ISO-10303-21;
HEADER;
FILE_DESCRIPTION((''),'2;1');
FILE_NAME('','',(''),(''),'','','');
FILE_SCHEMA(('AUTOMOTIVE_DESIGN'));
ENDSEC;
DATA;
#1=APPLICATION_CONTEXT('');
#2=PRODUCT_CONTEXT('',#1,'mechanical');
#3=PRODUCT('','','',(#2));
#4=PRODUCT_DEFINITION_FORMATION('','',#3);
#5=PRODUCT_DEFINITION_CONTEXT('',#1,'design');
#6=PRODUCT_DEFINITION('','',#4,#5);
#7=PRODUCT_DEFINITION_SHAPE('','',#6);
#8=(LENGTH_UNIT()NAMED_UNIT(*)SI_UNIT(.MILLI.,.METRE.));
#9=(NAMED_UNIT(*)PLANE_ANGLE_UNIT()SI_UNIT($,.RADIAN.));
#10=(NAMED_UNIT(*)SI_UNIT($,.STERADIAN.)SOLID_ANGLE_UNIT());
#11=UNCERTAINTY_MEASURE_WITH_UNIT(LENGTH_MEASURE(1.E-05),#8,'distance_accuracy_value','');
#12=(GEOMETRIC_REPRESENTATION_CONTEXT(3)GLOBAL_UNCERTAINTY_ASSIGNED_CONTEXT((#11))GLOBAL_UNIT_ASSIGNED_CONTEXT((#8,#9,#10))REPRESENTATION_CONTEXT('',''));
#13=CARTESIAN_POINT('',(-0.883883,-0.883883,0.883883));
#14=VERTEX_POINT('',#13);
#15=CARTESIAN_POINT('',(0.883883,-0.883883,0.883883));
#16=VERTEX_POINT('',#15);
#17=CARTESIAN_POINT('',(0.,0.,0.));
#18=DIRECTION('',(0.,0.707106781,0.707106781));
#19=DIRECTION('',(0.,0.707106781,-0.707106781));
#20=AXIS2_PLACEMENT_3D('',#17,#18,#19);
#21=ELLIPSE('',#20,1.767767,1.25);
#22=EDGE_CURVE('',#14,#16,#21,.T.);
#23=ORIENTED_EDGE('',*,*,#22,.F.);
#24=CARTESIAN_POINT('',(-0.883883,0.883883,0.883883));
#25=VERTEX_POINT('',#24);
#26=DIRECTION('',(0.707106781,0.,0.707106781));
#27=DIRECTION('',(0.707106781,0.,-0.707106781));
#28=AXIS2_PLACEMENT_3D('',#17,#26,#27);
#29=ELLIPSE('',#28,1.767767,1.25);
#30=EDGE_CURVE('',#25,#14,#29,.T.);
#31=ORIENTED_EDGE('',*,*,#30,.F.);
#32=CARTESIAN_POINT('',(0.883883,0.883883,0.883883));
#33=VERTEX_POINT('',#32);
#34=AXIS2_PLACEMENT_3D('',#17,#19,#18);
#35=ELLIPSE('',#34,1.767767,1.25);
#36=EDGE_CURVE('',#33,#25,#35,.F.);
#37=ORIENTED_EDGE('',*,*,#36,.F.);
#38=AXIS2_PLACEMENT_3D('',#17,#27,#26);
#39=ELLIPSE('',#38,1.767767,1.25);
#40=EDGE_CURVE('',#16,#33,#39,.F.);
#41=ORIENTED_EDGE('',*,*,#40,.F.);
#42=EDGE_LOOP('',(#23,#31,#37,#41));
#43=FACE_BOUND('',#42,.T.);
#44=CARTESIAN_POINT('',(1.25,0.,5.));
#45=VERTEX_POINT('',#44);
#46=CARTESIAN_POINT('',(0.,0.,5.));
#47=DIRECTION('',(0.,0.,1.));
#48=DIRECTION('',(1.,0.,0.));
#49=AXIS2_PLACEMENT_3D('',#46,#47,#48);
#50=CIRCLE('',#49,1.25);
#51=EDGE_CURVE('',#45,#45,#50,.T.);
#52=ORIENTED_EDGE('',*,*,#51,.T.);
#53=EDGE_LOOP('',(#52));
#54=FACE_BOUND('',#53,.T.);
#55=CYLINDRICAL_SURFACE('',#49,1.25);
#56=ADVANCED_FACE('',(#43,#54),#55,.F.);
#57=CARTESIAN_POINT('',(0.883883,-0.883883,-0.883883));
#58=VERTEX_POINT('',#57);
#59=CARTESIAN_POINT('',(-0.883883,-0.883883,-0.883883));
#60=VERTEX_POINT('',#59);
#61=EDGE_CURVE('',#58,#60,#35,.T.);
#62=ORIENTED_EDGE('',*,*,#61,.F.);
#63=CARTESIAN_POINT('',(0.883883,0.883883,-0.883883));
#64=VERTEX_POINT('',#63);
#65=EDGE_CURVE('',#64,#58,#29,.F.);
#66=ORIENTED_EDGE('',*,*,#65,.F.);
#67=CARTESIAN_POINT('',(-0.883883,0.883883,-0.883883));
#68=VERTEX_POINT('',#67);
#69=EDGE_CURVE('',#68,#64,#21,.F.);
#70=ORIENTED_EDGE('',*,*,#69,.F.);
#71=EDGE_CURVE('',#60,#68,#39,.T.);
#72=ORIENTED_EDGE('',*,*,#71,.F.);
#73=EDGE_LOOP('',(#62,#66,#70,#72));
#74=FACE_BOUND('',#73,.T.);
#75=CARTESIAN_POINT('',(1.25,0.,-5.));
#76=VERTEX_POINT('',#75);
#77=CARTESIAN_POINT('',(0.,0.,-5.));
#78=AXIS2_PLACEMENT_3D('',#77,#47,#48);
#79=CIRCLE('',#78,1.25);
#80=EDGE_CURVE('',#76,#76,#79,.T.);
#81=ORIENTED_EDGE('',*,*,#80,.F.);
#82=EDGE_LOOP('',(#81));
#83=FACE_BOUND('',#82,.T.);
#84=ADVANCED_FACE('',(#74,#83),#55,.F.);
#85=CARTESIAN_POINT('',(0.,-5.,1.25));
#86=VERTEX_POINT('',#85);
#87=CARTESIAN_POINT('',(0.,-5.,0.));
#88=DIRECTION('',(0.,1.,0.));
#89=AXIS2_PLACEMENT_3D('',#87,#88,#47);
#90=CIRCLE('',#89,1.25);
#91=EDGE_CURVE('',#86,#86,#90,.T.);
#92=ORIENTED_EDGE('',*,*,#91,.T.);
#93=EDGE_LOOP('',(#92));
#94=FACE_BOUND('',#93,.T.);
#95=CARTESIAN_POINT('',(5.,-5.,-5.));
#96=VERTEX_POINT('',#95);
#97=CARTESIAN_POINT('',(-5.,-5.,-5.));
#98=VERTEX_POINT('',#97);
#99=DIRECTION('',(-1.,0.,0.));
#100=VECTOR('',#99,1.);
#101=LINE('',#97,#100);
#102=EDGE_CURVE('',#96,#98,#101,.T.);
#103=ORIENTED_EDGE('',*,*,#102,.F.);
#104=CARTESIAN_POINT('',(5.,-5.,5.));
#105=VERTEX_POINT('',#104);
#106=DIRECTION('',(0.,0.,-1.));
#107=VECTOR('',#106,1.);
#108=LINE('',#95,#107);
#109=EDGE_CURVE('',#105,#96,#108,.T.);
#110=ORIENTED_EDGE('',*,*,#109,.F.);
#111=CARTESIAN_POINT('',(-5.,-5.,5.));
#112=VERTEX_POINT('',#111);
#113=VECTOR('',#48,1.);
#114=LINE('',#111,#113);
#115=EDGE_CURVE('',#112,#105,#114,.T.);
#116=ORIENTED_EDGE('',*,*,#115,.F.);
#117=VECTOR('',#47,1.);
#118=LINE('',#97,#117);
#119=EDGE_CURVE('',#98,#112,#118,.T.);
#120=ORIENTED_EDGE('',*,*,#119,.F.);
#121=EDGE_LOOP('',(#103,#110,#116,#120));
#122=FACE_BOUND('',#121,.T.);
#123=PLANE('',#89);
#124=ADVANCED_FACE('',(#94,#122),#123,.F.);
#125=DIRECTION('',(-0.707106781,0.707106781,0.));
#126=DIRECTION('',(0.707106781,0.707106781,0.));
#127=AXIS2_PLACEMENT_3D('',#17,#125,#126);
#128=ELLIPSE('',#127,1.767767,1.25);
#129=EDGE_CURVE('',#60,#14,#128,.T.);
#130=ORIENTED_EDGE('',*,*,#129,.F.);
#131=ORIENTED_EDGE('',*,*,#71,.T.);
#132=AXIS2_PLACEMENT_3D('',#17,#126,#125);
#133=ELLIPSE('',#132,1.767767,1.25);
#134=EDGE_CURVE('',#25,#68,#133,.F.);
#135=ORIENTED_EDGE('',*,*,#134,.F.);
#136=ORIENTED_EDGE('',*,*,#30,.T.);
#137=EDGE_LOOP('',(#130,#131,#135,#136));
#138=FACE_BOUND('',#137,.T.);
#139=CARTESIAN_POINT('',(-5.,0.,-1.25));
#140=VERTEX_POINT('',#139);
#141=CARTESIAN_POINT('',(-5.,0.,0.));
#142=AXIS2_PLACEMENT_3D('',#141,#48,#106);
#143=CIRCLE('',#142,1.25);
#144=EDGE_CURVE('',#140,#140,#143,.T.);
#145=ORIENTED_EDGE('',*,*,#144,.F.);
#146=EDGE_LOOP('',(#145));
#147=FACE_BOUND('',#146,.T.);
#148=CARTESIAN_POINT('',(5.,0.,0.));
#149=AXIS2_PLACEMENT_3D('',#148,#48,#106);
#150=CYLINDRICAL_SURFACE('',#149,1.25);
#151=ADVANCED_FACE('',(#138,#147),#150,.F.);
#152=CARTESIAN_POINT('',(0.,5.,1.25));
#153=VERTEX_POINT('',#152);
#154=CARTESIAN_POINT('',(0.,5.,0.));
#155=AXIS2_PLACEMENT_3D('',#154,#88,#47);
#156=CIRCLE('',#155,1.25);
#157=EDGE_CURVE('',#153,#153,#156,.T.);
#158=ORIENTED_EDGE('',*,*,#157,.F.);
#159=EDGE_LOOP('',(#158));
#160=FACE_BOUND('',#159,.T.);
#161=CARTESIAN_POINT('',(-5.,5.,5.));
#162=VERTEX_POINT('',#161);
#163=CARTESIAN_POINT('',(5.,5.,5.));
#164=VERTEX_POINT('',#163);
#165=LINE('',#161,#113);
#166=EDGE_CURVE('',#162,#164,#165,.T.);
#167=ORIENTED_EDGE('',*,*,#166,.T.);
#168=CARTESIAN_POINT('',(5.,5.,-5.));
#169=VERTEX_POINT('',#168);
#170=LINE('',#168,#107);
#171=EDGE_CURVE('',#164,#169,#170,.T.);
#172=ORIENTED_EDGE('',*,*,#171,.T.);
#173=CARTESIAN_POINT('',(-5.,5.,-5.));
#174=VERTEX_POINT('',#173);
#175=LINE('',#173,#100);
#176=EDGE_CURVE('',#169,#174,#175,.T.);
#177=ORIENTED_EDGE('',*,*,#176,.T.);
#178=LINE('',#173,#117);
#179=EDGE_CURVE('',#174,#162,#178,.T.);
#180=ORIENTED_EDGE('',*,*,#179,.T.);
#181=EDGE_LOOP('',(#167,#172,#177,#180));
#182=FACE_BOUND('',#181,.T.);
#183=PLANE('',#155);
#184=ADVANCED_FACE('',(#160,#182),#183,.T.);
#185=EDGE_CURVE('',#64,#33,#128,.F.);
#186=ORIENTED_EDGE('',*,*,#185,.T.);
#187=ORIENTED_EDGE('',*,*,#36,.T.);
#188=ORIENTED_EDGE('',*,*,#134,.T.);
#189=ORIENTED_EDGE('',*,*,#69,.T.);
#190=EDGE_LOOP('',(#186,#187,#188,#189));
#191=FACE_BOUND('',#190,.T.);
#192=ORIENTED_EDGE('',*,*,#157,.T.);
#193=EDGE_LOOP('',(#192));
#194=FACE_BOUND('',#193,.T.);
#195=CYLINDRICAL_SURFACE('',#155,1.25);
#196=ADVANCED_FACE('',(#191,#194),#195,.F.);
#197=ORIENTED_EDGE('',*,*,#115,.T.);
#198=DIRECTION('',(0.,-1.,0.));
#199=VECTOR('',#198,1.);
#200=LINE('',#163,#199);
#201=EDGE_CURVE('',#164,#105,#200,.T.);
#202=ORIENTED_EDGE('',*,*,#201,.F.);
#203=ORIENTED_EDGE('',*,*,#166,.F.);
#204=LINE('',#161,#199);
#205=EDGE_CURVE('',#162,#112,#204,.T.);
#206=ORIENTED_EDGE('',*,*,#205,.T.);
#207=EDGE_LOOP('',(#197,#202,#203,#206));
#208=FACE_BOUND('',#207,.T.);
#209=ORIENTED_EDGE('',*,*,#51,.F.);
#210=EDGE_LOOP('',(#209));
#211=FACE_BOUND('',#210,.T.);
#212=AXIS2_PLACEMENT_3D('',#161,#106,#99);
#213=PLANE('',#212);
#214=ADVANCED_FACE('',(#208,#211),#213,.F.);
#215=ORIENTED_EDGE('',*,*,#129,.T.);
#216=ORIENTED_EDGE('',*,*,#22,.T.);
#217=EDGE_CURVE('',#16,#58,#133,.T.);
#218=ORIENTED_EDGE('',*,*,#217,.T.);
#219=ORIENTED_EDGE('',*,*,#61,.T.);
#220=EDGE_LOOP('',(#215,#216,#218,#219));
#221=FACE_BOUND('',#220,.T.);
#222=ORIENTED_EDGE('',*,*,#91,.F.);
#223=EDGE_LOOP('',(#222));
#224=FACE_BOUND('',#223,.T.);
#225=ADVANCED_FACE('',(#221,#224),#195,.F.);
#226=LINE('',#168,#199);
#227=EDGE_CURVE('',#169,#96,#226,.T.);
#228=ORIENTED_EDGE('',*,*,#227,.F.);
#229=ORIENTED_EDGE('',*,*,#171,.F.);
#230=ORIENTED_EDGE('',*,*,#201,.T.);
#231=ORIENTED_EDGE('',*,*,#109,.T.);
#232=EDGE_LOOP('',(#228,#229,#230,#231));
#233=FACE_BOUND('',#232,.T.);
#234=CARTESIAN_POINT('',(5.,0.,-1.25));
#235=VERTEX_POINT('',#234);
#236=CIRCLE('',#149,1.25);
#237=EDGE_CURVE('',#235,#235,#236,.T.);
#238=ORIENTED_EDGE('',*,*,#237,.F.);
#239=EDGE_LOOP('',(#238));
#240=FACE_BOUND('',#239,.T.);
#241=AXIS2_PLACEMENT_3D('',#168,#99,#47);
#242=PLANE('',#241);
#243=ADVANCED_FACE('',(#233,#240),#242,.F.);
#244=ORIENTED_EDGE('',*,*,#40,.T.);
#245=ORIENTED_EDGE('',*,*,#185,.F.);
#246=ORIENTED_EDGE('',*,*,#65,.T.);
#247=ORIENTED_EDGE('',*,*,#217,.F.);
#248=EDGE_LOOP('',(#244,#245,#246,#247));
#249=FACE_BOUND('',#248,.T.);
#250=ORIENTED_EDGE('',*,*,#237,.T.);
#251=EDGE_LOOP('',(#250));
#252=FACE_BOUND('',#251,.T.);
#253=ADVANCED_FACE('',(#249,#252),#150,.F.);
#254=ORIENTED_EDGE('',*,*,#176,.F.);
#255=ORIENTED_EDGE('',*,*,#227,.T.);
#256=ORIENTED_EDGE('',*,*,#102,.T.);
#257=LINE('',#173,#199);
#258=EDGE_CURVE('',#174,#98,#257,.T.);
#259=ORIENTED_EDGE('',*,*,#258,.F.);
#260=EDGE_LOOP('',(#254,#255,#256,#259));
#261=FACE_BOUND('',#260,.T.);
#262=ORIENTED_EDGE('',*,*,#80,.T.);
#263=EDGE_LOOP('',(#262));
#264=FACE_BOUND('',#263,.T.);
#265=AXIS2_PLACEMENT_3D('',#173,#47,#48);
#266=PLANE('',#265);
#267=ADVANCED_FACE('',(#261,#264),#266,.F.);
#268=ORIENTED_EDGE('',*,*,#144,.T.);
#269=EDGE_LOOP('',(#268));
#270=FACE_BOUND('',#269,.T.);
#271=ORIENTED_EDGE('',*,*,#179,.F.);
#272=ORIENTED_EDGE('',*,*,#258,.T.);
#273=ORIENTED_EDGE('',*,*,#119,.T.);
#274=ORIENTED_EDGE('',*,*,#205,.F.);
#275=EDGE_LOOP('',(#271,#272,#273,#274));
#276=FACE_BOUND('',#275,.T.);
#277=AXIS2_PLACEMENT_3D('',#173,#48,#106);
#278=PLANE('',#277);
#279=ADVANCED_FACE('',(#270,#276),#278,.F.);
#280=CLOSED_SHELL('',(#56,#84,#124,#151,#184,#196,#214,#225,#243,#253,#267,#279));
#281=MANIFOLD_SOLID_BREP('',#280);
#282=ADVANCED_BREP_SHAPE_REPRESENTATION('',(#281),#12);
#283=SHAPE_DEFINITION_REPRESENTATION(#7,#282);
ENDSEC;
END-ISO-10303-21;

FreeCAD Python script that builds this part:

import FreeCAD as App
import Part
import Sketcher
from FreeCAD import Vector

doc = App.newDocument("Part")
body = doc.addObject("PartDesign::Body", "Body")

sketch1 = body.newObject("Sketcher::SketchObject", "Sketch")
sketch1.AttachmentSupport = (doc.getObject("XZ_Plane"), [""])
sketch1.MapMode = "FlatFace"
sketch1.addGeometry(Part.LineSegment(Vector(-5, -5, 0), Vector(-5, 5, 0)), False)
sketch1.addGeometry(Part.LineSegment(Vector(-5, 5, 0), Vector(5, 5, 0)), False)
sketch1.addGeometry(Part.LineSegment(Vector(5, 5, 0), Vector(5, -5, 0)), False)
sketch1.addGeometry(Part.LineSegment(Vector(5, -5, 0), Vector(-5, -5, 0)), False)
sketch1.addConstraint(Sketcher.Constraint("Coincident", 0, 2, 1, 1))
sketch1.addConstraint(Sketcher.Constraint("Coincident", 1, 2, 2, 1))
sketch1.addConstraint(Sketcher.Constraint("Coincident", 2, 2, 3, 1))
sketch1.addConstraint(Sketcher.Constraint("Coincident", 3, 2, 0, 1))
sketch1.addConstraint(Sketcher.Constraint("Vertical", 0))
sketch1.addConstraint(Sketcher.Constraint("Horizontal", 1))
sketch1.addConstraint(Sketcher.Constraint("Vertical", 2))
sketch1.addConstraint(Sketcher.Constraint("Horizontal", 3))
sketch1.addConstraint(Sketcher.Constraint("Symmetric", 0, 2, 2, 2, -1, 1))
sketch1.addConstraint(Sketcher.Constraint("Equal", 3, 0))
sketch1.addConstraint(Sketcher.Constraint("DistanceX", 1, 1, 1, 2, 10.0))
pad1 = body.newObject("PartDesign::Pad", "Pad")
pad1.Profile = sketch1
pad1.Length = 10
pad1.Midplane = True

sketch2 = body.newObject("Sketcher::SketchObject", "Sketch001")
sketch2.AttachmentSupport = (doc.getObject("XZ_Plane"), [""])
sketch2.MapMode = "FlatFace"
sketch2.AttachmentOffset = App.Placement(Vector(0, 0, -5), App.Rotation())
sketch2.addGeometry(Part.Circle(Vector(0, 0, 0), Vector(0, 0, 1), 1.2), False)
sketch2.addConstraint(Sketcher.Constraint("Coincident", 0, 3, -1, 1))
sketch2.addConstraint(Sketcher.Constraint("Diameter", 0, 2.5))
doc.recompute()
hole = body.newObject("PartDesign::Hole", "Hole")
hole.Profile = sketch2
hole.ThreadType = "None"
hole.Diameter = 2.5
hole.DepthType = "ThroughAll"
hole.Reversed = True

sketch3 = body.newObject("Sketcher::SketchObject", "Sketch002")
sketch3.AttachmentSupport = (doc.getObject("YZ_Plane"), [""])
sketch3.MapMode = "FlatFace"
sketch3.AttachmentOffset = App.Placement(Vector(0, 0, 5), App.Rotation())
sketch3.addGeometry(Part.Circle(Vector(0, 0, 0), Vector(0, 0, 1), 1.2), False)
sketch3.addConstraint(Sketcher.Constraint("Coincident", 0, 3, -1, 1))
sketch3.addConstraint(Sketcher.Constraint("Diameter", 0, 2.5))
doc.recompute()
hole2 = body.newObject("PartDesign::Hole", "Hole001")
hole2.Profile = sketch3
hole2.ThreadType = "None"
hole2.Diameter = 2.5
hole2.DepthType = "ThroughAll"

sketch4 = body.newObject("Sketcher::SketchObject", "Sketch003")
sketch4.AttachmentSupport = (doc.getObject("XY_Plane"), [""])
sketch4.MapMode = "FlatFace"
sketch4.AttachmentOffset = App.Placement(Vector(0, 0, 5), App.Rotation())
sketch4.addGeometry(Part.Circle(Vector(0, 0, 0), Vector(0, 0, 1), 1.2), False)
sketch4.addConstraint(Sketcher.Constraint("Coincident", 0, 3, -1, 1))
sketch4.addConstraint(Sketcher.Constraint("Diameter", 0, 2.5))
doc.recompute()
hole3 = body.newObject("PartDesign::Hole", "Hole002")
hole3.Profile = sketch4
hole3.ThreadType = "None"
hole3.Diameter = 2.5
hole3.DepthType = "ThroughAll"

doc.recompute()
